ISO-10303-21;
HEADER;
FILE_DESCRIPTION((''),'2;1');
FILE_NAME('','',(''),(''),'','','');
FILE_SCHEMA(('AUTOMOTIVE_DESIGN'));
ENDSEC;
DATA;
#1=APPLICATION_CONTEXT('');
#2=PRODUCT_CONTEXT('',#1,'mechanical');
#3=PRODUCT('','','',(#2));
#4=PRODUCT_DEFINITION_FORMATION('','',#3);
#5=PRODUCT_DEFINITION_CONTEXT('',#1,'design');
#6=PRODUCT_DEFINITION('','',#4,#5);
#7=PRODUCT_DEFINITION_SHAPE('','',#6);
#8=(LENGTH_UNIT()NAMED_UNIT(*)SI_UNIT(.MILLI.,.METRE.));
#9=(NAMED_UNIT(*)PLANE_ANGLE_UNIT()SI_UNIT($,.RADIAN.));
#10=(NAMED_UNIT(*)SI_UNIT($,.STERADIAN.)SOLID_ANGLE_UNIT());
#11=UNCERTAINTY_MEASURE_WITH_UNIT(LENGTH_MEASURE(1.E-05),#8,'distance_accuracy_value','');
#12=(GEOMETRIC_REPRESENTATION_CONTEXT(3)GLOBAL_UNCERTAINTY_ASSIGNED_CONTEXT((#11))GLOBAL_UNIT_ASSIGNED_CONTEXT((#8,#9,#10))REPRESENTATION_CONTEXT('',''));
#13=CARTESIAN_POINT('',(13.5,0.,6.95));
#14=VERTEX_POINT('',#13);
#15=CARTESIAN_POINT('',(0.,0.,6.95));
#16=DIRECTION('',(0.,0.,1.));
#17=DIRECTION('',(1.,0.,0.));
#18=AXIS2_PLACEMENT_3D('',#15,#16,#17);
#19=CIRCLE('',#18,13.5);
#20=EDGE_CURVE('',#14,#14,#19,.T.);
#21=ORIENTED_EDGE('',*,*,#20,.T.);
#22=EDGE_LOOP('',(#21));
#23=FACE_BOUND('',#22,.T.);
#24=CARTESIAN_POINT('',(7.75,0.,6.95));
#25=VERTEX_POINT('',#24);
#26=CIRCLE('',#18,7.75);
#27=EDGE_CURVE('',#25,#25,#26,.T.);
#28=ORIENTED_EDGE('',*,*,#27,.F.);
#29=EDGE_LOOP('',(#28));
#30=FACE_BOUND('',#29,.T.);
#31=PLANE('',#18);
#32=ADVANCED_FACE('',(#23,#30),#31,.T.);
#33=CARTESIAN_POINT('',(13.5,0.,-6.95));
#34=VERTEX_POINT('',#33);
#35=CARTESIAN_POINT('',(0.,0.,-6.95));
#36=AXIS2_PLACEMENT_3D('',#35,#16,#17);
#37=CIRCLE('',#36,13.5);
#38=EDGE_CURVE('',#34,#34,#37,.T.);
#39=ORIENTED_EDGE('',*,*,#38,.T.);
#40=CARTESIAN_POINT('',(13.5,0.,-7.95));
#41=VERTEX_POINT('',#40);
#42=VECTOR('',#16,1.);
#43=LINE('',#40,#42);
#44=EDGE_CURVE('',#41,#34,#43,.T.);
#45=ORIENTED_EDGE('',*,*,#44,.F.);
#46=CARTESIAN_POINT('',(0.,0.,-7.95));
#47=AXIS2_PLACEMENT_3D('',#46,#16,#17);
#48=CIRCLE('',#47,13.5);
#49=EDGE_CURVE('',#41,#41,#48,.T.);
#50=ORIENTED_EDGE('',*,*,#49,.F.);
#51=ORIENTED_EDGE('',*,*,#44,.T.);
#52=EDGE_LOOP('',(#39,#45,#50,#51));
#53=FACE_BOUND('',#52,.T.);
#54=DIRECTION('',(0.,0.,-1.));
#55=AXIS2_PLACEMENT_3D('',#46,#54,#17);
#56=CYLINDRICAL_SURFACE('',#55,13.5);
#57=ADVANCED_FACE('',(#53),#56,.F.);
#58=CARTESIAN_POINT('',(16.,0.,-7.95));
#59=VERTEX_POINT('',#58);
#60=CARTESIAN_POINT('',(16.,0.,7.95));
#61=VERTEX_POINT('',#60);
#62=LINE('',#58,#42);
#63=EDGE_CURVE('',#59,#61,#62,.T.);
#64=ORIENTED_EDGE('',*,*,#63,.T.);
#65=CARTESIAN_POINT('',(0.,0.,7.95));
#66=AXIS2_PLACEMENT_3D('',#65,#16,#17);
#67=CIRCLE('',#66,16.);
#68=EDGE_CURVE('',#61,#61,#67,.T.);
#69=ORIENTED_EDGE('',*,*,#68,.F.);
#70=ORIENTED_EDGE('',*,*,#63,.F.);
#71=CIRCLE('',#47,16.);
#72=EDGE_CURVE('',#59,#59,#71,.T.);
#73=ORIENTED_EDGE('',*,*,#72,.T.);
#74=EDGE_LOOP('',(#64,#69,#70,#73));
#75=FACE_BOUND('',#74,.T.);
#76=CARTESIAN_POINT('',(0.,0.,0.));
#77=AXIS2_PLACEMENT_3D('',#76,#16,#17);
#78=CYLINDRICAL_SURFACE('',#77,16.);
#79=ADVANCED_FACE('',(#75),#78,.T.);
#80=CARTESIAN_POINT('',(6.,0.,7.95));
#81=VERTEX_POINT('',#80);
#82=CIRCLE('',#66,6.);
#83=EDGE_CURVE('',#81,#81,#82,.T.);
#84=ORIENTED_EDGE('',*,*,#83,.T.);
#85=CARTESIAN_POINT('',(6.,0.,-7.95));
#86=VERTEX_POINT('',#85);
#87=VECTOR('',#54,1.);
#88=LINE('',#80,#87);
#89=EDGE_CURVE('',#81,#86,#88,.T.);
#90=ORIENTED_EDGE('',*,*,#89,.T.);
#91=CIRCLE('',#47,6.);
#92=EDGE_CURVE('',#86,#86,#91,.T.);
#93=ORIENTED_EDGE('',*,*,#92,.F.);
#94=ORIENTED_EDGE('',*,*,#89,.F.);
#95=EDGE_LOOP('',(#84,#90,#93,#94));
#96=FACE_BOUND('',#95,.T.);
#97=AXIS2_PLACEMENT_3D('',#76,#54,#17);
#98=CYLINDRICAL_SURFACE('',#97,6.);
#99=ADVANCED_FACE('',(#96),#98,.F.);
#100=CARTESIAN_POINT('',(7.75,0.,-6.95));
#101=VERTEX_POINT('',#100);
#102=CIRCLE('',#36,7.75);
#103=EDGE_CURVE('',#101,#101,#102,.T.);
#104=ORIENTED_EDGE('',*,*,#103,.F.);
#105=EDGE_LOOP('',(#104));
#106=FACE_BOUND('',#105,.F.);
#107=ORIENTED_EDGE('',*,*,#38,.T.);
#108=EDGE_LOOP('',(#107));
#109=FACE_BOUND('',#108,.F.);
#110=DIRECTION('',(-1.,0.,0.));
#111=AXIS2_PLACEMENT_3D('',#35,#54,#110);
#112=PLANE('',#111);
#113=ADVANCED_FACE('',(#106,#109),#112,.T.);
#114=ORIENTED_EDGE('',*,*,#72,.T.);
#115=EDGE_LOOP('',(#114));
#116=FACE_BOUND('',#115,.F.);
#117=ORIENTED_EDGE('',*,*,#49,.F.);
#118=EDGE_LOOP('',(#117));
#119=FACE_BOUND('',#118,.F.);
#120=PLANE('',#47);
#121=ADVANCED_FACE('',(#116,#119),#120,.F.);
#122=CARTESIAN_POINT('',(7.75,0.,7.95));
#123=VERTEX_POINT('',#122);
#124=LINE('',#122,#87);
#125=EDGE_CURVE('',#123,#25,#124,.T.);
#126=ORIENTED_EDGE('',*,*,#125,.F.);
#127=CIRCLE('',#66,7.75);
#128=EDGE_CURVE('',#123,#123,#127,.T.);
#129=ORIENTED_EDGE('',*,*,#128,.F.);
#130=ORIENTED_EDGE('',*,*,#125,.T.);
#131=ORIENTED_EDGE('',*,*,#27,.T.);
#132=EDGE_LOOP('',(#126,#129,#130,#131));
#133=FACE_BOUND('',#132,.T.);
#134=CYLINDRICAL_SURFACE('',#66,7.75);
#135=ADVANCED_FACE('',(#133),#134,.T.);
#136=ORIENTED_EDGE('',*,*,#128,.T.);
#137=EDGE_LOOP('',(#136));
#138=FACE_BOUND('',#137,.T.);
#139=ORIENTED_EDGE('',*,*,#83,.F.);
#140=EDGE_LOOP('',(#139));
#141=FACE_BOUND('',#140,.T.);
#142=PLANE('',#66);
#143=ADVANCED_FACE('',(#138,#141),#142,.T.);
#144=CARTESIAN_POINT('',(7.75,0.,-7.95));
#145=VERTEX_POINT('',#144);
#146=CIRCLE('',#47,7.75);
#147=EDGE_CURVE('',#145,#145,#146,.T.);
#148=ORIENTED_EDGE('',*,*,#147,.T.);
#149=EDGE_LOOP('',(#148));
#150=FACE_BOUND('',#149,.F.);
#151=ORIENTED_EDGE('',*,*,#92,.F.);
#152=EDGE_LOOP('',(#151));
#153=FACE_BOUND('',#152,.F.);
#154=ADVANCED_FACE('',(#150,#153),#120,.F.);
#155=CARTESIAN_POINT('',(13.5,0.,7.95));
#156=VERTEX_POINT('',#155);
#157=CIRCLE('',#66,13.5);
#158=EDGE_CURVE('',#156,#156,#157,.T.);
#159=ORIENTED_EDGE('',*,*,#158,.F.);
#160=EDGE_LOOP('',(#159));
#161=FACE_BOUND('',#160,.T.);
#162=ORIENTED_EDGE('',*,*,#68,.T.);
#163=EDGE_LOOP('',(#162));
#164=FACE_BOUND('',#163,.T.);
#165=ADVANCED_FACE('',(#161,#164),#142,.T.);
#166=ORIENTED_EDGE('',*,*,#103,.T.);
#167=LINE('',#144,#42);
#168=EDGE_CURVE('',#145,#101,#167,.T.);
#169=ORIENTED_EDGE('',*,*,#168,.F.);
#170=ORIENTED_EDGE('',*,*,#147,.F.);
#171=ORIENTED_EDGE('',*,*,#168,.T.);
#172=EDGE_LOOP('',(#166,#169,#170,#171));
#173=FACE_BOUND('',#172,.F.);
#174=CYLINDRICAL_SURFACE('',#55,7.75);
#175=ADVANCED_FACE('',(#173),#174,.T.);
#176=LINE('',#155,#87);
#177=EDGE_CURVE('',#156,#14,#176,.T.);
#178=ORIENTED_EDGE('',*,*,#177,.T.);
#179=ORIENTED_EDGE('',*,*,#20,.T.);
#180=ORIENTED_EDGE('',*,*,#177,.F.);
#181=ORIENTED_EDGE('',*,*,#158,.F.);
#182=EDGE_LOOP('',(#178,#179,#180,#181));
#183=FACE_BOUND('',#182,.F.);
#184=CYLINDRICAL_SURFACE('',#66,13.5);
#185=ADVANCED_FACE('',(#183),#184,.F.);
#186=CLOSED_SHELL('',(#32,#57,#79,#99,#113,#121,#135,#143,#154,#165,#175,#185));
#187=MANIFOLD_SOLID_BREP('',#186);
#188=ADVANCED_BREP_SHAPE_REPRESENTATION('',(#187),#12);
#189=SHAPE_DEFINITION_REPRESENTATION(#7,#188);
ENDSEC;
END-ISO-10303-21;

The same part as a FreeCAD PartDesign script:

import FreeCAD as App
import Part
import Sketcher

V = App.Vector
Q = App.Units.Quantity

doc = App.newDocument("Part")
body = doc.addObject("PartDesign::Body", "Body")

sketch1 = body.newObject("Sketcher::SketchObject", "Sketch")
sketch1.AttachmentSupport = (doc.getObject("XY_Plane"), [""])
sketch1.MapMode = "FlatFace"
sketch1.addGeometry([
    Part.Circle(V(0, 0, 0), V(0, 0, 1), 16),
    Part.Circle(V(0, 0, 0), V(0, 0, 1), 6),
], False)
sketch1.addConstraint([
    Sketcher.Constraint("Coincident", 0, 3, -1, 1),
    Sketcher.Constraint("Coincident", 1, 3, -1, 1),
    Sketcher.Constraint("Diameter", 0, Q("32 mm")),
    Sketcher.Constraint("Diameter", 1, Q("12 mm")),
])
pad1 = body.newObject("PartDesign::Pad", "Pad")
pad1.Profile = sketch1
pad1.Length = 15.9
pad1.Midplane = True

sketch2 = body.newObject("Sketcher::SketchObject", "Sketch001")
sketch2.AttachmentSupport = (doc.getObject("XY_Plane"), [""])
sketch2.MapMode = "FlatFace"
sketch2.AttachmentOffset = App.Placement(V(0, 0, 7.95), App.Rotation())
sketch2.addGeometry([
    Part.Circle(V(0, 0, 0), V(0, 0, 1), 14),
    Part.Circle(V(0, 0, 0), V(0, 0, 1), 8),
], False)
sketch2.addConstraint([
    Sketcher.Constraint("Coincident", 0, 3, -1, 1),
    Sketcher.Constraint("Coincident", 1, 3, -1, 1),
    Sketcher.Constraint("Diameter", 0, Q("27 mm")),
    Sketcher.Constraint("Diameter", 1, Q("15.5 mm")),
])
pocket1 = body.newObject("PartDesign::Pocket", "Pocket")
pocket1.Profile = sketch2
pocket1.Length = 1
doc.recompute()

mirrored = body.newObject("PartDesign::Mirrored", "Mirrored")
mirrored.Originals = [pocket1]
mirrored.MirrorPlane = (doc.getObject("XY_Plane"), [""])
body.Tip = mirrored

doc.recompute()
